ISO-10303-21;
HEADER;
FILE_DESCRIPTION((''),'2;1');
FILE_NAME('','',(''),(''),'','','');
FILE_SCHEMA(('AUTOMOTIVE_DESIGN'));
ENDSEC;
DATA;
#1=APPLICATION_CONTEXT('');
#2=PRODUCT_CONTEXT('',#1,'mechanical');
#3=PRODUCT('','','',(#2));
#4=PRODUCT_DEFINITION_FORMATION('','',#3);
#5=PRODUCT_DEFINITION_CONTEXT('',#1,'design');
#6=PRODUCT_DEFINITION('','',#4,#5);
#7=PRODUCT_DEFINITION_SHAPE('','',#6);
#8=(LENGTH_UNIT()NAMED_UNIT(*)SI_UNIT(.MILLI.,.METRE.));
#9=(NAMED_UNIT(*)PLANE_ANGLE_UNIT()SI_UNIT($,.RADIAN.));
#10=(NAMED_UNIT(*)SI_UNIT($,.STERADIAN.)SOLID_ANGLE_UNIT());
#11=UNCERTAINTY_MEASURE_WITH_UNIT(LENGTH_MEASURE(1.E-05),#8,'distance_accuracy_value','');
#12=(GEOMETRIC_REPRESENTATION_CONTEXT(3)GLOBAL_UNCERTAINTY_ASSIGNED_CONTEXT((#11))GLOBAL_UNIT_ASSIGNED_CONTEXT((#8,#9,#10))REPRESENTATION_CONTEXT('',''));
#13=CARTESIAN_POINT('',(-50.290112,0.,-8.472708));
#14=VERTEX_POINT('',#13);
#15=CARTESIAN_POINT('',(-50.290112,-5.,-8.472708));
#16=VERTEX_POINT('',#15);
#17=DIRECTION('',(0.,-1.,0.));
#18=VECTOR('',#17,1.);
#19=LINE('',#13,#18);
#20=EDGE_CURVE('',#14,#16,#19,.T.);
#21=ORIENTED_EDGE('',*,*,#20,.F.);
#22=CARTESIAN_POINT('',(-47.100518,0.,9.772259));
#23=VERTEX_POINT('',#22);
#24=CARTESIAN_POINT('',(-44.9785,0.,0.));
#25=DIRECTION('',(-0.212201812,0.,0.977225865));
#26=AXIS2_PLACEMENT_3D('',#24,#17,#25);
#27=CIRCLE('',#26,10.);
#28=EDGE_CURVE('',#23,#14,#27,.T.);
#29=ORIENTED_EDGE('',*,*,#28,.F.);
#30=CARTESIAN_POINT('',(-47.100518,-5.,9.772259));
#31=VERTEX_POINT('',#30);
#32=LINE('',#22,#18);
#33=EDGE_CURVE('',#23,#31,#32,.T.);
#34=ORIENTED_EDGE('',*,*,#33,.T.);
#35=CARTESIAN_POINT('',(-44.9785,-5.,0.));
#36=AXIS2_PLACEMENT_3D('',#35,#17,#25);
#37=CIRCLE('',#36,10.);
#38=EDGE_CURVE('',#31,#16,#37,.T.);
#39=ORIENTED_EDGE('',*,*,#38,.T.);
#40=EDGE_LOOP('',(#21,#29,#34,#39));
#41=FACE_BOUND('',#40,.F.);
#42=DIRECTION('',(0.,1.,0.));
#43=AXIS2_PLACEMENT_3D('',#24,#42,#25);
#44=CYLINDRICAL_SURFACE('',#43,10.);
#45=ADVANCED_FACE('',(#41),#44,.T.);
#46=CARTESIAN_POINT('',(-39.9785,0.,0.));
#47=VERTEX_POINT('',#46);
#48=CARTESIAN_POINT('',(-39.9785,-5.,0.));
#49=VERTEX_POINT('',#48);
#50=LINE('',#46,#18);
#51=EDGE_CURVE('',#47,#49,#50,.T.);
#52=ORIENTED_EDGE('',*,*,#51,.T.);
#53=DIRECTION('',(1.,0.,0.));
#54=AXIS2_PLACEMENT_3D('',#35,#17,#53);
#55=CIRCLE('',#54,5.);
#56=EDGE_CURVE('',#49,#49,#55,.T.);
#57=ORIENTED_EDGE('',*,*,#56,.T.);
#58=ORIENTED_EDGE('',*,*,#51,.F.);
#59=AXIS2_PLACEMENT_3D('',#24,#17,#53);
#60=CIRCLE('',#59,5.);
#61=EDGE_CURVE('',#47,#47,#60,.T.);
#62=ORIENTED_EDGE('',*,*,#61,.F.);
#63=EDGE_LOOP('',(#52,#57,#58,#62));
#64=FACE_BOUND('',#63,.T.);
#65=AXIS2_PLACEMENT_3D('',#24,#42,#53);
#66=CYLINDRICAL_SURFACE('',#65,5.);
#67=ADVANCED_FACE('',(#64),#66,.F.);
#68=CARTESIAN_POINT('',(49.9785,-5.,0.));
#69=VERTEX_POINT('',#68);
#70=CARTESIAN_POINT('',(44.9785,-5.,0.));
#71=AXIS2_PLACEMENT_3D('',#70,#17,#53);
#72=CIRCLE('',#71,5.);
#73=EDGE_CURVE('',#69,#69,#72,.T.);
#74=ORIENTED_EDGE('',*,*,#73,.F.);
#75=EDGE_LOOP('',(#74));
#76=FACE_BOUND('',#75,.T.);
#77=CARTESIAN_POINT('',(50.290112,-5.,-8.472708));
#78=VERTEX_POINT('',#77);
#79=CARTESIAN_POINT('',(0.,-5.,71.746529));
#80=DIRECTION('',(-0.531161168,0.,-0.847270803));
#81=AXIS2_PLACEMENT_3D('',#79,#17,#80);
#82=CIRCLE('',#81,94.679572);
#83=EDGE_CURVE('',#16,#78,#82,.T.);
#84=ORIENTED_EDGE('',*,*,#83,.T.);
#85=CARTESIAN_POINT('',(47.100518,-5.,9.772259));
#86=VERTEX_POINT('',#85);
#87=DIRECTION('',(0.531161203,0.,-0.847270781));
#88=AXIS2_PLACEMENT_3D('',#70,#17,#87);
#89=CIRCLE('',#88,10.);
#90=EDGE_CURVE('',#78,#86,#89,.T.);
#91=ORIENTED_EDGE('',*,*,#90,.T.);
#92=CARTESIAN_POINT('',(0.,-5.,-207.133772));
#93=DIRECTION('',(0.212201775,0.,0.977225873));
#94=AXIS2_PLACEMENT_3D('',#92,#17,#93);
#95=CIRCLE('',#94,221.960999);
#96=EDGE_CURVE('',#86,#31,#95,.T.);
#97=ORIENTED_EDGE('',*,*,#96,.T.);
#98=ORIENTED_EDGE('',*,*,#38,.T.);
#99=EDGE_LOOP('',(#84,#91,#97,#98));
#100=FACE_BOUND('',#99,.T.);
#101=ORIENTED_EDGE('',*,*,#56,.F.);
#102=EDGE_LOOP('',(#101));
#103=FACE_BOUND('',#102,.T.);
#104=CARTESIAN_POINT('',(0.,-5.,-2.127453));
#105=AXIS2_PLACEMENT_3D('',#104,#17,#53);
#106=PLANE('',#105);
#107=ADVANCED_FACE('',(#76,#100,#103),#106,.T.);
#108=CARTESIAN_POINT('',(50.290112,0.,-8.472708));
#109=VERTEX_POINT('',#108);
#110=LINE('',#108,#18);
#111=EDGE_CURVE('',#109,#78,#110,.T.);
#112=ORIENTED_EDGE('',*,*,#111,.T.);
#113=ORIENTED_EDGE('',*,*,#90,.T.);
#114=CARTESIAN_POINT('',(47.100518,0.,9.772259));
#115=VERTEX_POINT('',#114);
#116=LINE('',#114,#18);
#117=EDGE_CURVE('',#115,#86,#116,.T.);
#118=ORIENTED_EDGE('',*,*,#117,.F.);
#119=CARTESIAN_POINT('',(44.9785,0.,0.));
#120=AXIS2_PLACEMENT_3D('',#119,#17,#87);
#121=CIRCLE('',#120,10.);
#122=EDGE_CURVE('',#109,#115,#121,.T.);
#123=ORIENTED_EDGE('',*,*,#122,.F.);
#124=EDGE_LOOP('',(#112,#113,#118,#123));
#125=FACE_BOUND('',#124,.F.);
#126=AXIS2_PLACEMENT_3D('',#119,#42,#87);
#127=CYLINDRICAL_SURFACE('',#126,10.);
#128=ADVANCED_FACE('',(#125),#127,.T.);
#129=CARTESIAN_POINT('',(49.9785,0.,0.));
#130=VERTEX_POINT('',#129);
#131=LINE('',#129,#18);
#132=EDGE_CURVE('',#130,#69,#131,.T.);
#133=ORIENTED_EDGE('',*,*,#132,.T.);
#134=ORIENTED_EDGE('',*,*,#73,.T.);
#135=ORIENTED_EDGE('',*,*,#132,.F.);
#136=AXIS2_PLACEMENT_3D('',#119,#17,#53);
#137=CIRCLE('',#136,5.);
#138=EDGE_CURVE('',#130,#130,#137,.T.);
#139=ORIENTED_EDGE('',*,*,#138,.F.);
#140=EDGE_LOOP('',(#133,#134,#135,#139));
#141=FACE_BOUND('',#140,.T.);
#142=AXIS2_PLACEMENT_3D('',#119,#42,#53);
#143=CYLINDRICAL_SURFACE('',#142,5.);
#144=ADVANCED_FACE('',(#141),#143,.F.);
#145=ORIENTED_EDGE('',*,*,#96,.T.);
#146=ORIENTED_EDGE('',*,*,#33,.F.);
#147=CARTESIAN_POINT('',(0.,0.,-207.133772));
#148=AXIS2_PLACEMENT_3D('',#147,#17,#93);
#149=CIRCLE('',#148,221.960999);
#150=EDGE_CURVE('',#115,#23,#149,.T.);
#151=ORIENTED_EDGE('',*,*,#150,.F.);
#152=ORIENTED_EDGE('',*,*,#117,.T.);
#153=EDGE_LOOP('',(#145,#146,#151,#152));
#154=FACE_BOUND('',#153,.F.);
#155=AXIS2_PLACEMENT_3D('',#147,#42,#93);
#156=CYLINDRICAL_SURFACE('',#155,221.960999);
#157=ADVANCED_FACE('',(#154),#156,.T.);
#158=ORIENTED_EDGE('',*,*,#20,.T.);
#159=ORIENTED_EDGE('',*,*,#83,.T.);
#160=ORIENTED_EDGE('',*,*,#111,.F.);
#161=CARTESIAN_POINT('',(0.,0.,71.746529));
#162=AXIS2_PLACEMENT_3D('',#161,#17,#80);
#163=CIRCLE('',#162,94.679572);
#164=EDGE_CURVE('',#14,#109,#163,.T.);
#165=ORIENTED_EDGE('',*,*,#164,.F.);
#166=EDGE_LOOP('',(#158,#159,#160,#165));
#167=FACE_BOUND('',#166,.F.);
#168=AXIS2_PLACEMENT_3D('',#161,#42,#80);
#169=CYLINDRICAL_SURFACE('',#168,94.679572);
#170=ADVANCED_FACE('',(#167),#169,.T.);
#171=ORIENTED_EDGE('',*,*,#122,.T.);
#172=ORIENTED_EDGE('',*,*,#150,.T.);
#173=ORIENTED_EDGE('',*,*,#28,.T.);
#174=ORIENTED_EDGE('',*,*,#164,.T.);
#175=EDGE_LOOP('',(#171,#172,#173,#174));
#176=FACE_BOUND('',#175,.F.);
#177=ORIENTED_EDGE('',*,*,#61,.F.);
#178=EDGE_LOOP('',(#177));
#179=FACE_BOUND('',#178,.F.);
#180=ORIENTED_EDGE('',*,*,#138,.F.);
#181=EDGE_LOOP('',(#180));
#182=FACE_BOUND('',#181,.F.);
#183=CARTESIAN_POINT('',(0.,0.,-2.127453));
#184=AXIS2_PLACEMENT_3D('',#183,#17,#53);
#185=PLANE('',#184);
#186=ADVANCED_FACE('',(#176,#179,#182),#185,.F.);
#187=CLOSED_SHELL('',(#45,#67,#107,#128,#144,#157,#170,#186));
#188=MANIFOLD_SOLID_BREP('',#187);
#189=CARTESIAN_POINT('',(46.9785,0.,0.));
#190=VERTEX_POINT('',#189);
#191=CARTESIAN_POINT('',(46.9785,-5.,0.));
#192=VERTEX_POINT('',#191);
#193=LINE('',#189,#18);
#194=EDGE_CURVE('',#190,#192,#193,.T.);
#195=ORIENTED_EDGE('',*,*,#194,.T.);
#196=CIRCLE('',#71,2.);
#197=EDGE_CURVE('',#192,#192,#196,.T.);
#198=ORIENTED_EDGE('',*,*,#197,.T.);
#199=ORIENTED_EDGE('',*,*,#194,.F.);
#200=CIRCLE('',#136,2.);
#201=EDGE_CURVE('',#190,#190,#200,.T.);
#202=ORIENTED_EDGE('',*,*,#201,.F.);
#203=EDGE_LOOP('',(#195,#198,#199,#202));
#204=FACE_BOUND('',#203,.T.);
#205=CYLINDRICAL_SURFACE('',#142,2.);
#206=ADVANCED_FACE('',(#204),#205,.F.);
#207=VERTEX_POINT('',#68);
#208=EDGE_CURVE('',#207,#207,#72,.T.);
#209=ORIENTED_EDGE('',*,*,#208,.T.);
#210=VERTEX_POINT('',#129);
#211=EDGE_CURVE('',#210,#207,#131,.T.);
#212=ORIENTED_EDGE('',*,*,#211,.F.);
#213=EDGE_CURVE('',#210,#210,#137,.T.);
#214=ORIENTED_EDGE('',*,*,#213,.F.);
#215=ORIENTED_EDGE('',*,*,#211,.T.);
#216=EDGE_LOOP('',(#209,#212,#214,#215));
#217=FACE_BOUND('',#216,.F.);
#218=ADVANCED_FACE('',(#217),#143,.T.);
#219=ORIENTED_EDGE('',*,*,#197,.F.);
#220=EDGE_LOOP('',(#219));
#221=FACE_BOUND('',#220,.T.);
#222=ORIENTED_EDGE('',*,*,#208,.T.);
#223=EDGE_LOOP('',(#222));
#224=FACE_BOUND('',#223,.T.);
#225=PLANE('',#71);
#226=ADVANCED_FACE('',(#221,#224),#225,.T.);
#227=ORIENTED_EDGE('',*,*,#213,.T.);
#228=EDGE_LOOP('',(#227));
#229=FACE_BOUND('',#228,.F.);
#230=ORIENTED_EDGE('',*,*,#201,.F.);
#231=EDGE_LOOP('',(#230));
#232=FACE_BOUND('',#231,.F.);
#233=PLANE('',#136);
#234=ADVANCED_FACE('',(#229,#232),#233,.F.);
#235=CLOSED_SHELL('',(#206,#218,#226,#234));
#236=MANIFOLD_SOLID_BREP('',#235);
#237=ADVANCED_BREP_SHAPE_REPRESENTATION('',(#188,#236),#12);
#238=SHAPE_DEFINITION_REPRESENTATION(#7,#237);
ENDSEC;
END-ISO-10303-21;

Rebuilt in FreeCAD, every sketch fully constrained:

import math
import FreeCAD as App
import Part
import Sketcher
Q = App.Units.Quantity

doc = App.newDocument("Part")
body = doc.addObject("PartDesign::Body", "Body")

# Sketch on XZ plane
sketch1 = doc.addObject("Sketcher::SketchObject", "Sketch")
body.addObject(sketch1)
sketch1.AttachmentSupport = (doc.XZ_Plane, [""])
sketch1.MapMode = "FlatFace"
sketch1.addGeometry(Part.Circle(App.Vector(45, 0, 0), App.Vector(0, 0, 1), 5), False)
sketch1.addGeometry(Part.Circle(App.Vector(45, 0, 0), App.Vector(0, 0, 1), 2), False)
sketch1.addConstraint(Sketcher.Constraint("Coincident", 1, 3, 0, 3))
sketch1.addConstraint(Sketcher.Constraint("PointOnObject", 0, 3, -1))
sketch1.addConstraint(Sketcher.Constraint("Diameter", 0, Q("10 mm")))
sketch1.addConstraint(Sketcher.Constraint("Diameter", 1, Q("4 mm")))
sketch1.addConstraint(Sketcher.Constraint("DistanceX", -1, 1, 0, 3, Q("44.9785 mm")))
pad1 = doc.addObject("PartDesign::Pad", "Pad")
body.addObject(pad1)
pad1.Profile = sketch1
pad1.Length = 5
body2 = doc.addObject("PartDesign::Body", "Body001")

# Sketch on XZ plane
sketch2 = doc.addObject("Sketcher::SketchObject", "Sketch001")
body2.addObject(sketch2)
sketch2.AttachmentSupport = (doc.getObject("XZ_Plane001"), [""])
sketch2.MapMode = "FlatFace"
sketch2.addGeometry(Part.ArcOfCircle(Part.Circle(App.Vector(-45, 0, 0), App.Vector(0, 0, 1), 10), math.radians(102), math.radians(238)), False)
sketch2.addGeometry(Part.ArcOfCircle(Part.Circle(App.Vector(0, 72, 0), App.Vector(0, 0, 1), 95), math.radians(-122), math.radians(-58)), False)
sketch2.addGeometry(Part.ArcOfCircle(Part.Circle(App.Vector(45, 0, 0), App.Vector(0, 0, 1), 10), math.radians(-58), math.radians(78)), False)
sketch2.addGeometry(Part.ArcOfCircle(Part.Circle(App.Vector(0, -207, 0), App.Vector(0, 0, 1), 222), math.radians(78), math.radians(102)), False)
sketch2.addGeometry(Part.Circle(App.Vector(-45, 0, 0), App.Vector(0, 0, 1), 5), False)
sketch2.addGeometry(Part.Circle(App.Vector(45, 0, 0), App.Vector(0, 0, 1), 5), False)
sketch2.addConstraint(Sketcher.Constraint("Tangent", 0, 2, 1, 1))
sketch2.addConstraint(Sketcher.Constraint("Tangent", 1, 2, 2, 1))
sketch2.addConstraint(Sketcher.Constraint("Tangent", 2, 2, 3, 1))
sketch2.addConstraint(Sketcher.Constraint("Tangent", 3, 2, 0, 1))
sketch2.addConstraint(Sketcher.Constraint("Coincident", 4, 3, 0, 3))
sketch2.addConstraint(Sketcher.Constraint("Coincident", 5, 3, 2, 3))
sketch2.addConstraint(Sketcher.Constraint("Equal", 0, 2))
sketch2.addConstraint(Sketcher.Constraint("Equal", 4, 5))
sketch2.addConstraint(Sketcher.Constraint("Symmetric", 0, 3, 2, 3, -1, 1))
sketch2.addConstraint(Sketcher.Constraint("PointOnObject", 0, 3, -1))
sketch2.addConstraint(Sketcher.Constraint("Diameter", 4, Q("10 mm")))
sketch2.addConstraint(Sketcher.Constraint("Radius", 0, Q("10 mm")))
sketch2.addConstraint(Sketcher.Constraint("Radius", 3, Q("221.960999 mm")))
sketch2.addConstraint(Sketcher.Constraint("Radius", 1, Q("94.679572 mm")))
sketch2.addConstraint(Sketcher.Constraint("DistanceX", 0, 3, 2, 3, Q("89.957 mm")))
pad2 = doc.addObject("PartDesign::Pad", "Pad001")
body2.addObject(pad2)
pad2.Profile = sketch2
pad2.Length = 5

doc.recompute()
